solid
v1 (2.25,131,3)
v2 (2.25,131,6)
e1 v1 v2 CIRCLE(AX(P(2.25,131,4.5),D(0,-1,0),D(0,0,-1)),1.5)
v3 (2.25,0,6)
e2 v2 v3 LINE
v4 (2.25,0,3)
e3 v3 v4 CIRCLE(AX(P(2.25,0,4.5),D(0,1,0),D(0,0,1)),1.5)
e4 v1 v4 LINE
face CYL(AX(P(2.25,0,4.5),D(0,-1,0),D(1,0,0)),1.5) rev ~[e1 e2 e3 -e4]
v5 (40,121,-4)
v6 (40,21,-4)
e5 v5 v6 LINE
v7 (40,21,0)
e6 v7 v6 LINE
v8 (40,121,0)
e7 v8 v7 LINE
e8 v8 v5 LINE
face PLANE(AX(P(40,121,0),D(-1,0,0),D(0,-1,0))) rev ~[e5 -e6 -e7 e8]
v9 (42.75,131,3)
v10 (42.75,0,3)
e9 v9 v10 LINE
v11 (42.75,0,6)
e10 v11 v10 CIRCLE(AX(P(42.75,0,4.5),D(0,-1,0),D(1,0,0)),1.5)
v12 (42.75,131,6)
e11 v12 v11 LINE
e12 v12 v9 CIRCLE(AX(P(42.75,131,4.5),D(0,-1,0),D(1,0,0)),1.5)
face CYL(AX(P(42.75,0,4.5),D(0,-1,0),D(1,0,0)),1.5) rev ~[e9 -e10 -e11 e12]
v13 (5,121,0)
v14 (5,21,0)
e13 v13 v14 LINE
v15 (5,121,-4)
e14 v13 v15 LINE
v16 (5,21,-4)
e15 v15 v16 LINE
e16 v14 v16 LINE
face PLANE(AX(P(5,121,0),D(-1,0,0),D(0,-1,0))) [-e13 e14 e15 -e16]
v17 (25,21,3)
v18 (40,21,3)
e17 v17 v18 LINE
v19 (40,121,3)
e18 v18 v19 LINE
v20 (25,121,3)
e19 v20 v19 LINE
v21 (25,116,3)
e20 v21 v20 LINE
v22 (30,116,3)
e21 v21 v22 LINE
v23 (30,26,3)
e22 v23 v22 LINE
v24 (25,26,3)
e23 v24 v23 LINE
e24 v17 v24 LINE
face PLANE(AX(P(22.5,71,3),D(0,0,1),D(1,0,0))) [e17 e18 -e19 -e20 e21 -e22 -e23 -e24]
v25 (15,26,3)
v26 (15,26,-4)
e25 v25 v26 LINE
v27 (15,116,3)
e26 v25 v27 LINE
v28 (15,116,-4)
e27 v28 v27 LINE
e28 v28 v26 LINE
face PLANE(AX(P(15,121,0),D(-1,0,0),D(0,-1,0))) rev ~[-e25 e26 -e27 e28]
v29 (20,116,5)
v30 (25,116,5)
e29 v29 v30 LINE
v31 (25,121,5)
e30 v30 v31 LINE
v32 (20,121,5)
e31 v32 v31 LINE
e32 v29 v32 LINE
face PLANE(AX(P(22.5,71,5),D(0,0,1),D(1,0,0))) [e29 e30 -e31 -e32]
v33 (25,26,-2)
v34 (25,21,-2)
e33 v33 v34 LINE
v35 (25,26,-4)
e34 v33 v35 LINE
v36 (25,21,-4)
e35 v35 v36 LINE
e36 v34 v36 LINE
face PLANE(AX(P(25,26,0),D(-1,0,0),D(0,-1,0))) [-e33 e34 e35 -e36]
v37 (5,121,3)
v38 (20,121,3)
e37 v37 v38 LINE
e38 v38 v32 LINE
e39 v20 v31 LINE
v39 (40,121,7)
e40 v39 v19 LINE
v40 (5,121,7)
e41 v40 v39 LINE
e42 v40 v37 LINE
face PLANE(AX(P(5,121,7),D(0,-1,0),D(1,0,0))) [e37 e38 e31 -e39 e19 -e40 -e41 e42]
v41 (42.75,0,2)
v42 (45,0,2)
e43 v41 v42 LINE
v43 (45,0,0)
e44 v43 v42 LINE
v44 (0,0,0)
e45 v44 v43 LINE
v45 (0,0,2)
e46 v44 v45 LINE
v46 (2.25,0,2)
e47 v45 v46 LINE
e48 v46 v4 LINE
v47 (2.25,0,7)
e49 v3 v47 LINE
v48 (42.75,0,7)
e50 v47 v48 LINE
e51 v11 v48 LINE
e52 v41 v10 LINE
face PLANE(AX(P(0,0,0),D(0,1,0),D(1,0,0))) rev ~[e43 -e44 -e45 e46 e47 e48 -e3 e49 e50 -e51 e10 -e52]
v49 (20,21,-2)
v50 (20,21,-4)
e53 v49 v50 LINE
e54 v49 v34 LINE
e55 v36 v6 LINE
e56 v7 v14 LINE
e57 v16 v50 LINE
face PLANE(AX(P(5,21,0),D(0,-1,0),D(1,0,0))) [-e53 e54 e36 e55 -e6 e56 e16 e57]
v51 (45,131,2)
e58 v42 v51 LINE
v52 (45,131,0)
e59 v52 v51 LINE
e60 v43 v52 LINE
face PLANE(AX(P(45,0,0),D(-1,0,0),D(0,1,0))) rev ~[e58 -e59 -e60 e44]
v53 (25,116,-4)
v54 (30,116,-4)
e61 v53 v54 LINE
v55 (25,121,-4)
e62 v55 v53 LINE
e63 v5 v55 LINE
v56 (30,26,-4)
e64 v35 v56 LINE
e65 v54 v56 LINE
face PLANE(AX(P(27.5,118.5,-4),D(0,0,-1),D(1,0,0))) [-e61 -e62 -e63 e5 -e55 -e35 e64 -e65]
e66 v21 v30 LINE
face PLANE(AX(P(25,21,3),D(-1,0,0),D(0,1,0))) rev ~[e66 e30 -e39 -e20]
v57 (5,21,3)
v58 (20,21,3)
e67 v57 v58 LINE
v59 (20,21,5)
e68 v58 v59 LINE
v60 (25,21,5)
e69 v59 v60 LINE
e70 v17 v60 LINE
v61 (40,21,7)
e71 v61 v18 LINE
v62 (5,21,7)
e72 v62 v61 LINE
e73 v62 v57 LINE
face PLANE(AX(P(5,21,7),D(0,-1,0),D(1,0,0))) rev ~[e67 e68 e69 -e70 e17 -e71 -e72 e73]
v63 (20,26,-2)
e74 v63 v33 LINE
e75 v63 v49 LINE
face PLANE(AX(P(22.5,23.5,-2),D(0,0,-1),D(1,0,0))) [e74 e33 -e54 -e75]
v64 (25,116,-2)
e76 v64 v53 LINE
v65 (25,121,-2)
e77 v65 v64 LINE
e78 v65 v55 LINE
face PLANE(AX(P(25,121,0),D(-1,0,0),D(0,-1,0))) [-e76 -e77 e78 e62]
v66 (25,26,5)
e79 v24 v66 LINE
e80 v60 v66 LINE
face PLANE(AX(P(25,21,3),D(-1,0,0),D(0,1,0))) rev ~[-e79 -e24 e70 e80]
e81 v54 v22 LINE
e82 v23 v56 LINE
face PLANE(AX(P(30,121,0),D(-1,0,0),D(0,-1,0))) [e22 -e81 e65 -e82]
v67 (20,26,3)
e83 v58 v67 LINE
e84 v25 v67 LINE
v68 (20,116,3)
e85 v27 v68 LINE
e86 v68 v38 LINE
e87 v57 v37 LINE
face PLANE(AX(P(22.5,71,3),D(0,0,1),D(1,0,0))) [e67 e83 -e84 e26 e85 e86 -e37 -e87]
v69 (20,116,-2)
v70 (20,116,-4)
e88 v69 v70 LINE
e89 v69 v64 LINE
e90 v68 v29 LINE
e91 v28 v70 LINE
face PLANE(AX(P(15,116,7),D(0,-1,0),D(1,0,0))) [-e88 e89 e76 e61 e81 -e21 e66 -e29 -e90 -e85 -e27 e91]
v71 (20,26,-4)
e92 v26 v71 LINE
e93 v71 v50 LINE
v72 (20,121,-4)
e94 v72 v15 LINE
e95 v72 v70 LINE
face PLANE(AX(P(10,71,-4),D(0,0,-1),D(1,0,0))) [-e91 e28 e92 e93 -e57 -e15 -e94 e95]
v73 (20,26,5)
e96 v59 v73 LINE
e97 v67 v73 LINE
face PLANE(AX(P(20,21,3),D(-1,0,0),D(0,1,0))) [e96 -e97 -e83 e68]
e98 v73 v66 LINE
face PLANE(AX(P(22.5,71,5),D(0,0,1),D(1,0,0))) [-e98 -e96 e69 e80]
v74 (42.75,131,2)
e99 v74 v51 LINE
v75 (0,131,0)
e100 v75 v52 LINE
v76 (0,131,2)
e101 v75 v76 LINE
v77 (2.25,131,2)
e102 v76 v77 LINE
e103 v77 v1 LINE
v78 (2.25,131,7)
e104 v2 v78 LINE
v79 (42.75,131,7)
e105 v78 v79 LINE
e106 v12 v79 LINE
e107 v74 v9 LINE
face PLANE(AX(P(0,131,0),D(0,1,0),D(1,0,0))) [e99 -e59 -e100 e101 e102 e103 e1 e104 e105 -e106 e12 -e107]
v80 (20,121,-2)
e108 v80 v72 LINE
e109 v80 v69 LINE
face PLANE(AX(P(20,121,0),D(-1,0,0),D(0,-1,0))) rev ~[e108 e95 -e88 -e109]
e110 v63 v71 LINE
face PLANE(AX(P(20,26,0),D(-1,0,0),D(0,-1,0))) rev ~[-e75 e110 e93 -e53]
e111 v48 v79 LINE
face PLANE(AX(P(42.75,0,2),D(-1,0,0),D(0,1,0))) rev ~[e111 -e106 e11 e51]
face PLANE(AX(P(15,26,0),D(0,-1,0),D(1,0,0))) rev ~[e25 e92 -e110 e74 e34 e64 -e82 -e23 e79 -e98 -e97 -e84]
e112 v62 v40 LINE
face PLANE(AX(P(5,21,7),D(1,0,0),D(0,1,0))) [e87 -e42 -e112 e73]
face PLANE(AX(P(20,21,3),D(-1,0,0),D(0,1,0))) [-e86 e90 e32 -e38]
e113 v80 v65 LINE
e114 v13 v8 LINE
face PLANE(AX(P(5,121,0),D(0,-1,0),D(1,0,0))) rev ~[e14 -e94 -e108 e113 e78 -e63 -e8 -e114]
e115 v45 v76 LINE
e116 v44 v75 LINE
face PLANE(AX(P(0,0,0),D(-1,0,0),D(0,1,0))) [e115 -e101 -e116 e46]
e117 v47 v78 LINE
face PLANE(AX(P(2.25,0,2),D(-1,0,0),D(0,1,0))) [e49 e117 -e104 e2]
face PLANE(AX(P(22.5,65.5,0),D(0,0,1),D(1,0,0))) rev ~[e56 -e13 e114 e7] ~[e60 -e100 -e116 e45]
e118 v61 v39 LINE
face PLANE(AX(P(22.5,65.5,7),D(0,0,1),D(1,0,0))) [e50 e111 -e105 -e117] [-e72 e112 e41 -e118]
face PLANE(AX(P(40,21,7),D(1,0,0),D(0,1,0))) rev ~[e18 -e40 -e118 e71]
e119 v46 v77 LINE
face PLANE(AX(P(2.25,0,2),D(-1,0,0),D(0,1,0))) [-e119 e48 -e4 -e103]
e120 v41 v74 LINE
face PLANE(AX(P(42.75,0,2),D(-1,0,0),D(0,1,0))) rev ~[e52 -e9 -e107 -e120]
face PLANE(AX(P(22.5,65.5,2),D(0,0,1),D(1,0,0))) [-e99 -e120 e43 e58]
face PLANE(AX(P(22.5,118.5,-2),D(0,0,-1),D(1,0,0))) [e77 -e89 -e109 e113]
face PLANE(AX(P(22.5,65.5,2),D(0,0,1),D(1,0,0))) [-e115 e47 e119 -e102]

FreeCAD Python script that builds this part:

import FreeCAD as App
import Part
import Sketcher
from FreeCAD import Vector
Q = App.Units.Quantity

doc = App.newDocument("Part")
body = doc.addObject("PartDesign::Body", "Body")

# Sketch on XY plane
sketch1 = body.newObject("Sketcher::SketchObject", "Sketch")
sketch1.AttachmentSupport = (doc.getObject("XY_Plane"), [""])
sketch1.MapMode = "FlatFace"
sketch1.addGeometry([
    Part.LineSegment(Vector(0, 131, 0), Vector(0, 0, 0)),
    Part.LineSegment(Vector(0, 0, 0), Vector(45, 0, 0)),
    Part.LineSegment(Vector(45, 0, 0), Vector(45, 131, 0)),
    Part.LineSegment(Vector(45, 131, 0), Vector(0, 131, 0)),
], False)
sketch1.addConstraint([
    Sketcher.Constraint("Coincident", 0, 2, 1, 1),
    Sketcher.Constraint("Coincident", 1, 2, 2, 1),
    Sketcher.Constraint("Coincident", 2, 2, 3, 1),
    Sketcher.Constraint("Coincident", 3, 2, 0, 1),
    Sketcher.Constraint("Vertical", 0),
    Sketcher.Constraint("Horizontal", 1),
    Sketcher.Constraint("Vertical", 2),
    Sketcher.Constraint("Horizontal", 3),
    Sketcher.Constraint("Coincident", 0, 2, -1, 1),
    Sketcher.Constraint("DistanceX", 1, 1, 1, 2, Q("45 mm")),
    Sketcher.Constraint("DistanceY", 0, 2, 0, 1, Q("131 mm")),
])
pad1 = body.newObject("PartDesign::Pad", "Pad")
pad1.Profile = sketch1
pad1.Length = 2

# Sketch on XY plane
sketch2 = body.newObject("Sketcher::SketchObject", "Sketch001")
sketch2.AttachmentSupport = (doc.getObject("XY_Plane"), [""])
sketch2.MapMode = "FlatFace"
sketch2.AttachmentOffset = App.Placement(Vector(0, 0, 2), App.Rotation())
sketch2.addGeometry([
    Part.LineSegment(Vector(2, 131, 0), Vector(2, 0, 0)),
    Part.LineSegment(Vector(2, 0, 0), Vector(43, 0, 0)),
    Part.LineSegment(Vector(43, 0, 0), Vector(43, 131, 0)),
    Part.LineSegment(Vector(43, 131, 0), Vector(2, 131, 0)),
], False)
sketch2.addConstraint([
    Sketcher.Constraint("Coincident", 0, 2, 1, 1),
    Sketcher.Constraint("Coincident", 1, 2, 2, 1),
    Sketcher.Constraint("Coincident", 2, 2, 3, 1),
    Sketcher.Constraint("Coincident", 3, 2, 0, 1),
    Sketcher.Constraint("Vertical", 0),
    Sketcher.Constraint("Horizontal", 1),
    Sketcher.Constraint("Vertical", 2),
    Sketcher.Constraint("Horizontal", 3),
    Sketcher.Constraint("PointOnObject", 0, 2, -1),
    Sketcher.Constraint("DistanceY", 0, 2, 0, 1, Q("131 mm")),
    Sketcher.Constraint("DistanceX", 1, 1, 1, 2, Q("40.5 mm")),
    Sketcher.Constraint("DistanceX", -1, 1, 0, 2, Q("2.25 mm")),
])
pad2 = body.newObject("PartDesign::Pad", "Pad001")
pad2.Profile = sketch2
pad2.Length = 5

# Sketch on XY plane
sketch3 = body.newObject("Sketcher::SketchObject", "Sketch002")
sketch3.AttachmentSupport = (doc.getObject("XY_Plane"), [""])
sketch3.MapMode = "FlatFace"
sketch3.AttachmentOffset = App.Placement(Vector(0, 0, 7), App.Rotation())
sketch3.addGeometry([
    Part.LineSegment(Vector(5, 121, 0), Vector(5, 21, 0)),
    Part.LineSegment(Vector(5, 21, 0), Vector(40, 21, 0)),
    Part.LineSegment(Vector(40, 21, 0), Vector(40, 121, 0)),
    Part.LineSegment(Vector(40, 121, 0), Vector(5, 121, 0)),
], False)
sketch3.addConstraint([
    Sketcher.Constraint("Coincident", 0, 2, 1, 1),
    Sketcher.Constraint("Coincident", 1, 2, 2, 1),
    Sketcher.Constraint("Coincident", 2, 2, 3, 1),
    Sketcher.Constraint("Coincident", 3, 2, 0, 1),
    Sketcher.Constraint("Vertical", 0),
    Sketcher.Constraint("Horizontal", 1),
    Sketcher.Constraint("Vertical", 2),
    Sketcher.Constraint("Horizontal", 3),
    Sketcher.Constraint("DistanceX", 1, 1, 1, 2, Q("35 mm")),
    Sketcher.Constraint("DistanceY", 0, 2, 0, 1, Q("100 mm")),
    Sketcher.Constraint("DistanceX", -1, 1, 0, 2, Q("5 mm")),
    Sketcher.Constraint("DistanceY", -1, 1, 0, 2, Q("21 mm")),
])
pocket1 = body.newObject("PartDesign::Pocket", "Pocket")
pocket1.Profile = sketch3
pocket1.Length = 4

# Sketch on XY plane
sketch4 = body.newObject("Sketcher::SketchObject", "Sketch003")
sketch4.AttachmentSupport = (doc.getObject("XY_Plane"), [""])
sketch4.MapMode = "FlatFace"
sketch4.AttachmentOffset = App.Placement(Vector(0, 0, 3), App.Rotation())
sketch4.addGeometry([
    Part.LineSegment(Vector(20, 121, 0), Vector(20, 21, 0)),
    Part.LineSegment(Vector(20, 21, 0), Vector(25, 21, 0)),
    Part.LineSegment(Vector(25, 21, 0), Vector(25, 121, 0)),
    Part.LineSegment(Vector(25, 121, 0), Vector(20, 121, 0)),
], False)
sketch4.addConstraint([
    Sketcher.Constraint("Coincident", 0, 2, 1, 1),
    Sketcher.Constraint("Coincident", 1, 2, 2, 1),
    Sketcher.Constraint("Coincident", 2, 2, 3, 1),
    Sketcher.Constraint("Coincident", 3, 2, 0, 1),
    Sketcher.Constraint("Vertical", 0),
    Sketcher.Constraint("Horizontal", 1),
    Sketcher.Constraint("Vertical", 2),
    Sketcher.Constraint("Horizontal", 3),
    Sketcher.Constraint("DistanceX", 1, 1, 1, 2, Q("5 mm")),
    Sketcher.Constraint("DistanceY", 0, 2, 0, 1, Q("100 mm")),
    Sketcher.Constraint("DistanceX", -1, 1, 0, 2, Q("20 mm")),
    Sketcher.Constraint("DistanceY", -1, 1, 0, 2, Q("21 mm")),
])
pad3 = body.newObject("PartDesign::Pad", "Pad002")
pad3.Profile = sketch4
pad3.Length = 2

# Sketch on XY plane
sketch5 = body.newObject("Sketcher::SketchObject", "Sketch004")
sketch5.AttachmentSupport = (doc.getObject("XY_Plane"), [""])
sketch5.MapMode = "FlatFace"
sketch5.AttachmentOffset = App.Placement(Vector(0, 0, 7), App.Rotation())
sketch5.addGeometry([
    Part.LineSegment(Vector(15, 116, 0), Vector(15, 26, 0)),
    Part.LineSegment(Vector(15, 26, 0), Vector(30, 26, 0)),
    Part.LineSegment(Vector(30, 26, 0), Vector(30, 116, 0)),
    Part.LineSegment(Vector(30, 116, 0), Vector(15, 116, 0)),
], False)
sketch5.addConstraint([
    Sketcher.Constraint("Coincident", 0, 2, 1, 1),
    Sketcher.Constraint("Coincident", 1, 2, 2, 1),
    Sketcher.Constraint("Coincident", 2, 2, 3, 1),
    Sketcher.Constraint("Coincident", 3, 2, 0, 1),
    Sketcher.Constraint("Vertical", 0),
    Sketcher.Constraint("Horizontal", 1),
    Sketcher.Constraint("Vertical", 2),
    Sketcher.Constraint("Horizontal", 3),
    Sketcher.Constraint("DistanceX", 1, 1, 1, 2, Q("15 mm")),
    Sketcher.Constraint("DistanceY", 0, 2, 0, 1, Q("90 mm")),
    Sketcher.Constraint("DistanceX", -1, 1, 0, 2, Q("15 mm")),
    Sketcher.Constraint("DistanceY", -1, 1, 0, 2, Q("26 mm")),
])
pocket2 = body.newObject("PartDesign::Pocket", "Pocket001")
pocket2.Profile = sketch5
pocket2.Type = "ThroughAll"

# Sketch on XY plane
sketch6 = body.newObject("Sketcher::SketchObject", "Sketch005")
sketch6.AttachmentSupport = (doc.getObject("XY_Plane"), [""])
sketch6.MapMode = "FlatFace"
sketch6.addGeometry([
    Part.LineSegment(Vector(20, 116, 0), Vector(20, 121, 0)),  # 0
    Part.LineSegment(Vector(20, 121, 0), Vector(25, 121, 0)),  # 1
    Part.LineSegment(Vector(25, 121, 0), Vector(25, 116, 0)),  # 2
    Part.LineSegment(Vector(25, 116, 0), Vector(20, 116, 0)),  # 3
    Part.LineSegment(Vector(20, 21, 0), Vector(20, 26, 0)),  # 4
    Part.LineSegment(Vector(20, 26, 0), Vector(25, 26, 0)),  # 5
    Part.LineSegment(Vector(25, 26, 0), Vector(25, 21, 0)),  # 6
    Part.LineSegment(Vector(25, 21, 0), Vector(20, 21, 0)),  # 7
], False)
sketch6.addConstraint([
    Sketcher.Constraint("Coincident", 0, 2, 1, 1),
    Sketcher.Constraint("Coincident", 1, 2, 2, 1),
    Sketcher.Constraint("Coincident", 2, 2, 3, 1),
    Sketcher.Constraint("Coincident", 3, 2, 0, 1),
    Sketcher.Constraint("Coincident", 4, 2, 5, 1),
    Sketcher.Constraint("Coincident", 5, 2, 6, 1),
    Sketcher.Constraint("Coincident", 6, 2, 7, 1),
    Sketcher.Constraint("Coincident", 7, 2, 4, 1),
    Sketcher.Constraint("Vertical", 0),
    Sketcher.Constraint("Horizontal", 1),
    Sketcher.Constraint("Vertical", 2),
    Sketcher.Constraint("Horizontal", 3),
    Sketcher.Constraint("Vertical", 4),
    Sketcher.Constraint("Horizontal", 5),
    Sketcher.Constraint("Vertical", 6),
    Sketcher.Constraint("Horizontal", 7),
    Sketcher.Constraint("Vertical", 3, 2, 4, 2),
    Sketcher.Constraint("Vertical", 2, 2, 5, 2),
    Sketcher.Constraint("Equal", 7, 0),
    Sketcher.Constraint("Equal", 2, 4),
    Sketcher.Constraint("DistanceX", 1, 1, 1, 2, Q("5 mm")),
    Sketcher.Constraint("DistanceX", -1, 1, 0, 2, Q("20 mm")),
    Sketcher.Constraint("DistanceY", -1, 1, 0, 2, Q("121 mm")),
    Sketcher.Constraint("DistanceY", -1, 1, 4, 2, Q("26 mm")),
])
pad4 = body.newObject("PartDesign::Pad", "Pad003")
pad4.Profile = sketch6
pad4.Length = 2
pad4.Reversed = True

# Sketch on XY plane
sketch7 = body.newObject("Sketcher::SketchObject", "Sketch006")
sketch7.AttachmentSupport = (doc.getObject("XY_Plane"), [""])
sketch7.MapMode = "FlatFace"
sketch7.addGeometry([
    Part.LineSegment(Vector(15, 21, 0), Vector(15, 26, 0)),  # 0
    Part.LineSegment(Vector(15, 26, 0), Vector(20, 26, 0)),  # 1
    Part.LineSegment(Vector(20, 26, 0), Vector(20, 21, 0)),  # 2
    Part.LineSegment(Vector(20, 21, 0), Vector(15, 21, 0)),  # 3
    Part.LineSegment(Vector(25, 21, 0), Vector(25, 26, 0)),  # 4
    Part.LineSegment(Vector(25, 26, 0), Vector(30, 26, 0)),  # 5
    Part.LineSegment(Vector(30, 26, 0), Vector(30, 21, 0)),  # 6
    Part.LineSegment(Vector(30, 21, 0), Vector(25, 21, 0)),  # 7
    Part.LineSegment(Vector(25, 116, 0), Vector(25, 121, 0)),  # 8
    Part.LineSegment(Vector(25, 121, 0), Vector(30, 121, 0)),  # 9
    Part.LineSegment(Vector(30, 121, 0), Vector(30, 116, 0)),  # 10
    Part.LineSegment(Vector(30, 116, 0), Vector(25, 116, 0)),  # 11
    Part.LineSegment(Vector(15, 116, 0), Vector(15, 121, 0)),  # 12
    Part.LineSegment(Vector(15, 121, 0), Vector(20, 121, 0)),  # 13
    Part.LineSegment(Vector(20, 121, 0), Vector(20, 116, 0)),  # 14
    Part.LineSegment(Vector(20, 116, 0), Vector(15, 116, 0)),  # 15
], False)
sketch7.addConstraint([
    Sketcher.Constraint("Coincident", 0, 2, 1, 1),
    Sketcher.Constraint("Coincident", 1, 2, 2, 1),
    Sketcher.Constraint("Coincident", 2, 2, 3, 1),
    Sketcher.Constraint("Coincident", 3, 2, 0, 1),
    Sketcher.Constraint("Coincident", 4, 2, 5, 1),
    Sketcher.Constraint("Coincident", 5, 2, 6, 1),
    Sketcher.Constraint("Coincident", 6, 2, 7, 1),
    Sketcher.Constraint("Coincident", 7, 2, 4, 1),
    Sketcher.Constraint("Coincident", 8, 2, 9, 1),
    Sketcher.Constraint("Coincident", 9, 2, 10, 1),
    Sketcher.Constraint("Coincident", 10, 2, 11, 1),
    Sketcher.Constraint("Coincident", 11, 2, 8, 1),
    Sketcher.Constraint("Coincident", 12, 2, 13, 1),
    Sketcher.Constraint("Coincident", 13, 2, 14, 1),
    Sketcher.Constraint("Coincident", 14, 2, 15, 1),
    Sketcher.Constraint("Coincident", 15, 2, 12, 1),
    Sketcher.Constraint("Vertical", 0),
    Sketcher.Constraint("Horizontal", 1),
    Sketcher.Constraint("Vertical", 2),
    Sketcher.Constraint("Horizontal", 3),
    Sketcher.Constraint("Vertical", 4),
    Sketcher.Constraint("Horizontal", 5),
    Sketcher.Constraint("Vertical", 6),
    Sketcher.Constraint("Horizontal", 7),
    Sketcher.Constraint("Vertical", 8),
    Sketcher.Constraint("Horizontal", 9),
    Sketcher.Constraint("Vertical", 10),
    Sketcher.Constraint("Horizontal", 11),
    Sketcher.Constraint("Vertical", 12),
    Sketcher.Constraint("Horizontal", 13),
    Sketcher.Constraint("Vertical", 14),
    Sketcher.Constraint("Horizontal", 15),
    Sketcher.Constraint("Horizontal", 1, 2, 4, 2),
    Sketcher.Constraint("Horizontal", 3, 2, 6, 2),
    Sketcher.Constraint("Horizontal", 9, 2, 12, 2),
    Sketcher.Constraint("Horizontal", 11, 2, 14, 2),
    Sketcher.Constraint("Vertical", 7, 2, 8, 2),
    Sketcher.Constraint("Vertical", 6, 2, 9, 2),
    Sketcher.Constraint("Vertical", 3, 2, 12, 2),
    Sketcher.Constraint("Vertical", 2, 2, 13, 2),
    Sketcher.Constraint("Equal", 3, 5),
    Sketcher.Constraint("Equal", 15, 0),
    Sketcher.Constraint("Equal", 6, 8),
    Sketcher.Constraint("DistanceX", 1, 1, 1, 2, Q("5 mm")),
    Sketcher.Constraint("DistanceX", -1, 1, 0, 2, Q("15 mm")),
    Sketcher.Constraint("DistanceY", -1, 1, 0, 2, Q("26 mm")),
    Sketcher.Constraint("DistanceX", -1, 1, 4, 2, Q("25 mm")),
    Sketcher.Constraint("DistanceY", -1, 1, 8, 2, Q("121 mm")),
])
pad5 = body.newObject("PartDesign::Pad", "Pad004")
pad5.Profile = sketch7
pad5.Length = 4
pad5.Reversed = True

# Sketch on XY plane
sketch8 = body.newObject("Sketcher::SketchObject", "Sketch007")
sketch8.AttachmentSupport = (doc.getObject("XY_Plane"), [""])
sketch8.MapMode = "FlatFace"
sketch8.addGeometry([
    Part.LineSegment(Vector(5, 21, 0), Vector(5, 121, 0)),  # 0
    Part.LineSegment(Vector(5, 121, 0), Vector(15, 121, 0)),  # 1
    Part.LineSegment(Vector(15, 121, 0), Vector(15, 21, 0)),  # 2
    Part.LineSegment(Vector(15, 21, 0), Vector(5, 21, 0)),  # 3
    Part.LineSegment(Vector(30, 21, 0), Vector(30, 121, 0)),  # 4
    Part.LineSegment(Vector(30, 121, 0), Vector(40, 121, 0)),  # 5
    Part.LineSegment(Vector(40, 121, 0), Vector(40, 21, 0)),  # 6
    Part.LineSegment(Vector(40, 21, 0), Vector(30, 21, 0)),  # 7
], False)
sketch8.addConstraint([
    Sketcher.Constraint("Coincident", 0, 2, 1, 1),
    Sketcher.Constraint("Coincident", 1, 2, 2, 1),
    Sketcher.Constraint("Coincident", 2, 2, 3, 1),
    Sketcher.Constraint("Coincident", 3, 2, 0, 1),
    Sketcher.Constraint("Coincident", 4, 2, 5, 1),
    Sketcher.Constraint("Coincident", 5, 2, 6, 1),
    Sketcher.Constraint("Coincident", 6, 2, 7, 1),
    Sketcher.Constraint("Coincident", 7, 2, 4, 1),
    Sketcher.Constraint("Vertical", 0),
    Sketcher.Constraint("Horizontal", 1),
    Sketcher.Constraint("Vertical", 2),
    Sketcher.Constraint("Horizontal", 3),
    Sketcher.Constraint("Vertical", 4),
    Sketcher.Constraint("Horizontal", 5),
    Sketcher.Constraint("Vertical", 6),
    Sketcher.Constraint("Horizontal", 7),
    Sketcher.Constraint("Horizontal", 1, 2, 4, 2),
    Sketcher.Constraint("Horizontal", 3, 2, 6, 2),
    Sketcher.Constraint("Equal", 3, 5),
    Sketcher.Constraint("DistanceX", 1, 1, 1, 2, Q("10 mm")),
    Sketcher.Constraint("DistanceY", 0, 1, 0, 2, Q("100 mm")),
    Sketcher.Constraint("DistanceX", -1, 1, 0, 2, Q("5 mm")),
    Sketcher.Constraint("DistanceY", -1, 1, 0, 2, Q("121 mm")),
    Sketcher.Constraint("DistanceX", -1, 1, 4, 2, Q("30 mm")),
])
pad6 = body.newObject("PartDesign::Pad", "Pad005")
pad6.Profile = sketch8
pad6.Length = 4
pad6.Reversed = True

# Sketch on XZ plane
sketch9 = body.newObject("Sketcher::SketchObject", "Sketch008")
sketch9.AttachmentSupport = (doc.getObject("XZ_Plane"), [""])
sketch9.MapMode = "FlatFace"
sketch9.addGeometry([
    Part.Circle(Vector(2.2, 4.5, 0), Vector(0, 0, 1), 1.5),
    Part.Circle(Vector(42.8, 4.5, 0), Vector(0, 0, 1), 1.5),
], False)
sketch9.addConstraint([
    Sketcher.Constraint("Equal", 0, 1),
    Sketcher.Constraint("Horizontal", 0, 3, 1, 3),
    Sketcher.Constraint("Diameter", 0, Q("3 mm")),
    Sketcher.Constraint("DistanceY", -1, 1, 0, 3, Q("4.5 mm")),
    Sketcher.Constraint("DistanceX", 0, 3, 1, 3, Q("40.5 mm")),
    Sketcher.Constraint("DistanceX", -1, 1, 0, 3, Q("2.25 mm")),
])
pocket3 = body.newObject("PartDesign::Pocket", "Pocket002")
pocket3.Profile = sketch9
pocket3.Type = "ThroughAll"

doc.recompute()
